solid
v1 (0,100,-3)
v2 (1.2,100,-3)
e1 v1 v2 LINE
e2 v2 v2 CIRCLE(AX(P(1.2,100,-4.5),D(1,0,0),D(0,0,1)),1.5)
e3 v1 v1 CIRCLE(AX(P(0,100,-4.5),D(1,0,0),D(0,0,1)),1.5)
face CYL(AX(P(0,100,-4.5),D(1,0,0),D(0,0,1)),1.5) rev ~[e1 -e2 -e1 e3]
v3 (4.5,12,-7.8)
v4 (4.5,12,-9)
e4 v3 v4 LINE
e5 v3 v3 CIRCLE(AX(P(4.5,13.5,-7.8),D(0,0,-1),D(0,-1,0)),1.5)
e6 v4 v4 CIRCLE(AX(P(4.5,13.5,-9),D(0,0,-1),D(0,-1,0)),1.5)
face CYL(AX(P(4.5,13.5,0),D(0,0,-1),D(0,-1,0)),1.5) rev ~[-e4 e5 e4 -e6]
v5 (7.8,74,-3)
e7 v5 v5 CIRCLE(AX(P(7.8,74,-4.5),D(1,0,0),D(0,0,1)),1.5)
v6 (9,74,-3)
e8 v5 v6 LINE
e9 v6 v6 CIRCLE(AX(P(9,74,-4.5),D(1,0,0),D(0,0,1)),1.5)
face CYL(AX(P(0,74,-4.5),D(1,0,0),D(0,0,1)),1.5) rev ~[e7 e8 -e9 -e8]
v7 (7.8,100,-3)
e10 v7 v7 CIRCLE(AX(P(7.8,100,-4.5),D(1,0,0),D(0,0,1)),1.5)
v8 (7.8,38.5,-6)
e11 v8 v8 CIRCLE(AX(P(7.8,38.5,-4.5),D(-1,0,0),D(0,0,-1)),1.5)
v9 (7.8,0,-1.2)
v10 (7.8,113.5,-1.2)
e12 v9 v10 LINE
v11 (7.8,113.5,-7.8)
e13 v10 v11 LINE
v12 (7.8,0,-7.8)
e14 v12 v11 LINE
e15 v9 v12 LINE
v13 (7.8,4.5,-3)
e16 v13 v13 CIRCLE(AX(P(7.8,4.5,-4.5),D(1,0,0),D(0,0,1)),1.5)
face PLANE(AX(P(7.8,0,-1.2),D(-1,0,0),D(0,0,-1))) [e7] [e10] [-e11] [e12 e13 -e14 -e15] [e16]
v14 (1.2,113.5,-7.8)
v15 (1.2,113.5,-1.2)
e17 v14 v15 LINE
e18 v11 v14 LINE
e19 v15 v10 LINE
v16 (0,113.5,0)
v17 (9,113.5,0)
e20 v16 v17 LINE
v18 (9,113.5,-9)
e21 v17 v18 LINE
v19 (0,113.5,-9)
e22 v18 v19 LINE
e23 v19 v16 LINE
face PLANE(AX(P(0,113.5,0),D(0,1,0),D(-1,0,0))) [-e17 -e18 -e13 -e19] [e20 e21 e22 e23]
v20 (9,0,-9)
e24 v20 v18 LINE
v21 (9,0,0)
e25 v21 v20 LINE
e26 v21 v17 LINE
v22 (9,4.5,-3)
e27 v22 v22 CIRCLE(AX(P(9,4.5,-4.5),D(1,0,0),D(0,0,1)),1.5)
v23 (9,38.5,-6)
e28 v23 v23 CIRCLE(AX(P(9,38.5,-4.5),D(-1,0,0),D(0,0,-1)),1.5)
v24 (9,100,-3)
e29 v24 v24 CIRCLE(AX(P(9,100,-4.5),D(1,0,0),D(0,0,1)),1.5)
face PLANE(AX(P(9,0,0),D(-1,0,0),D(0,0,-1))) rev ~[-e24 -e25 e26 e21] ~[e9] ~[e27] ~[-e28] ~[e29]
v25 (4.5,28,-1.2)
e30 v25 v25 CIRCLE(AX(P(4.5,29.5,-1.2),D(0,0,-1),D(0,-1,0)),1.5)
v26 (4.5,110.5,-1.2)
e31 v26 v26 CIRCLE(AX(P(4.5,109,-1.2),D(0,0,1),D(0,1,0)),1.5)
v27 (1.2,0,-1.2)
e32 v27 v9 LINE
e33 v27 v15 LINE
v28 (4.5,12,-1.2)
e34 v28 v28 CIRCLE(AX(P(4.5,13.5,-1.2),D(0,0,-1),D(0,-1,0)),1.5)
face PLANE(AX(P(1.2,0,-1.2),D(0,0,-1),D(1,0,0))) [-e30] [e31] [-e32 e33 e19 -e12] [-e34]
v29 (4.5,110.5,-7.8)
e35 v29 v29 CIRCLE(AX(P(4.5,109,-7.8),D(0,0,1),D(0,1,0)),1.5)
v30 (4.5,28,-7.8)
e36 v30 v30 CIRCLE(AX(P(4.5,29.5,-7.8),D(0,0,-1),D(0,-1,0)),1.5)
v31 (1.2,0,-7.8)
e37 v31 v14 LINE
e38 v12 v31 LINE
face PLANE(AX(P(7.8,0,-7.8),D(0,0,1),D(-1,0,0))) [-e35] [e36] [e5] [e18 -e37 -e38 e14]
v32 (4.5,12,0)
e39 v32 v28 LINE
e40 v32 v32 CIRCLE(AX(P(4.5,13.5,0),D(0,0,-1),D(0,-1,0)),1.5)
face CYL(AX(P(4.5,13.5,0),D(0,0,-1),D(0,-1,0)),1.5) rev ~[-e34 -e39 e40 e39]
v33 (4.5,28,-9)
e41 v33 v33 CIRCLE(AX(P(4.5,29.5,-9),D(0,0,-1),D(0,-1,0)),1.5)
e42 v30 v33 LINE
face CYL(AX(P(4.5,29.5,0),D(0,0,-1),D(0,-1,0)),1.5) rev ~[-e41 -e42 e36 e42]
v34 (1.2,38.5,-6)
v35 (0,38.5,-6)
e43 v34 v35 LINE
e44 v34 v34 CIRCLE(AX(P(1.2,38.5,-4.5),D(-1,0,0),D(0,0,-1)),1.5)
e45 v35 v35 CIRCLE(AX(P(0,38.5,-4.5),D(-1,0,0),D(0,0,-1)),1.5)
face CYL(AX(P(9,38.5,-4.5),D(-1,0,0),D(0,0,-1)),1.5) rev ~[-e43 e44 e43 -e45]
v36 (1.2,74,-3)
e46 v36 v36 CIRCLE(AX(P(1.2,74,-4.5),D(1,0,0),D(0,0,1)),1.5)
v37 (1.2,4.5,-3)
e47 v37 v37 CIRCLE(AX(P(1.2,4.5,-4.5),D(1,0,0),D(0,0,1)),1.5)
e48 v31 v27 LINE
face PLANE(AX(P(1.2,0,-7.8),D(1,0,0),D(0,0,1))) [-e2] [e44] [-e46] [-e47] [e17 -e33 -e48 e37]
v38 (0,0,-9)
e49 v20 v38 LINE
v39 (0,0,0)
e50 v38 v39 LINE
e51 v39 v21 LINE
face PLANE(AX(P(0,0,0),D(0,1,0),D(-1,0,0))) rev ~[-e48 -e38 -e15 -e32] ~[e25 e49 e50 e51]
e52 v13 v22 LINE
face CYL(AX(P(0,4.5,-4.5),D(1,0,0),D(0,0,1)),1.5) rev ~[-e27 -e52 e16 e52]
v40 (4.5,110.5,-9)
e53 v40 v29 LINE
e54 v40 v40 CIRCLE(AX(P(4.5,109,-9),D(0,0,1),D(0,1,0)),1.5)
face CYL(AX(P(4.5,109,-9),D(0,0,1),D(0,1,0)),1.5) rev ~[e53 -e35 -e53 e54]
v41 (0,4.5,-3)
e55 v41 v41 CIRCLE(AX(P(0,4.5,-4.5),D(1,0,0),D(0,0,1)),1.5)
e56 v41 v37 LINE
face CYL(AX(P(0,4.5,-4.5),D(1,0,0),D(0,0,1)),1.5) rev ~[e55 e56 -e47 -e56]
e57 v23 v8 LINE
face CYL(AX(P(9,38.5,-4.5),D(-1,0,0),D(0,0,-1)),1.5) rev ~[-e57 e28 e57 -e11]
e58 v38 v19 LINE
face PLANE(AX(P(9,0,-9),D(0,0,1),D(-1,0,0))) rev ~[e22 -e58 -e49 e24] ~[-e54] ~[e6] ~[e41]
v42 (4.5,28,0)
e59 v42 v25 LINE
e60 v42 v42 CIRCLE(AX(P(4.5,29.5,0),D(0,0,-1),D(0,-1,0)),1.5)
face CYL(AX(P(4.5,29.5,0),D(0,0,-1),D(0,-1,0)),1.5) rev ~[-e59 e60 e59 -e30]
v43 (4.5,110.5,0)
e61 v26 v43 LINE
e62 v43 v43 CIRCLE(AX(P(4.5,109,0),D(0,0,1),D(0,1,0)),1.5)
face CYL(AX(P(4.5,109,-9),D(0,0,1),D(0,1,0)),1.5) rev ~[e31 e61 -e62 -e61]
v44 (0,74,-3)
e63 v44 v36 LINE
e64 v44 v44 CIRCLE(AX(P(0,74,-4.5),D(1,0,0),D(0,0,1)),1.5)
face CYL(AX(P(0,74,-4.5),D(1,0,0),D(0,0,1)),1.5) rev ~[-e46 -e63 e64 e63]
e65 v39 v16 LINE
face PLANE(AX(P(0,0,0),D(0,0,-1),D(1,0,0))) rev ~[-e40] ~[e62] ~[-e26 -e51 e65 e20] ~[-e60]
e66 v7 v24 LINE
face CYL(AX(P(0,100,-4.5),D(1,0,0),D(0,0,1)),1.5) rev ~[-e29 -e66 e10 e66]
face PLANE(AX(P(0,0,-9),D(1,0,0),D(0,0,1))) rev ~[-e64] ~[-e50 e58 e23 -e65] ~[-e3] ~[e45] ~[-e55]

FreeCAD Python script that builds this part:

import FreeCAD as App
import Part
import Sketcher
from FreeCAD import Vector

doc = App.newDocument("Part")
params = doc.addObject("Spreadsheet::Sheet", "Params")
for row, (alias, value) in enumerate([
    ("sketch1_width", "9 mm"),
    ("sketch1_width2", "6.6 mm"),
    ("pad1_length", "113.5 mm"),
    ("sketch2_diameter", "3 mm"),
    ("hole_diameter", "3 mm"),
    ("sketch3_diameter", "3 mm"),
    ("hole2_diameter", "3 mm"),
    ("sketch4_diameter", "3 mm"),
    ("hole3_diameter", "3 mm"),
    ("sketch5_diameter", "3 mm"),
    ("hole4_diameter", "3 mm"),
    ("sketch6_diameter", "3 mm"),
    ("hole5_diameter", "3 mm"),
], start=1):
    params.set(f"A{row}", alias)
    params.set(f"B{row}", "=" + value)
    params.setAlias(f"B{row}", alias)

body = doc.addObject("PartDesign::Body", "Body")

sketch1 = doc.addObject("Sketcher::SketchObject", "Sketch")
body.addObject(sketch1)
sketch1.AttachmentSupport = (doc.XZ_Plane, [""])
sketch1.MapMode = "FlatFace"
sketch1.addGeometry(Part.LineSegment(Vector(0, -9, 0), Vector(0, 0, 0)), False)
sketch1.addGeometry(Part.LineSegment(Vector(0, 0, 0), Vector(9, 0, 0)), False)
sketch1.addGeometry(Part.LineSegment(Vector(9, 0, 0), Vector(9, -9, 0)), False)
sketch1.addGeometry(Part.LineSegment(Vector(9, -9, 0), Vector(0, -9, 0)), False)
sketch1.addGeometry(Part.LineSegment(Vector(8, -1, 0), Vector(1, -1, 0)), False)
sketch1.addGeometry(Part.LineSegment(Vector(1, -1, 0), Vector(1, -8, 0)), False)
sketch1.addGeometry(Part.LineSegment(Vector(1, -8, 0), Vector(8, -8, 0)), False)
sketch1.addGeometry(Part.LineSegment(Vector(8, -8, 0), Vector(8, -1, 0)), False)
sketch1.addConstraint(Sketcher.Constraint("Coincident", 0, 2, 1, 1))
sketch1.addConstraint(Sketcher.Constraint("Coincident", 1, 2, 2, 1))
sketch1.addConstraint(Sketcher.Constraint("Coincident", 2, 2, 3, 1))
sketch1.addConstraint(Sketcher.Constraint("Coincident", 3, 2, 0, 1))
sketch1.addConstraint(Sketcher.Constraint("Coincident", 4, 2, 5, 1))
sketch1.addConstraint(Sketcher.Constraint("Coincident", 5, 2, 6, 1))
sketch1.addConstraint(Sketcher.Constraint("Coincident", 6, 2, 7, 1))
sketch1.addConstraint(Sketcher.Constraint("Coincident", 7, 2, 4, 1))
sketch1.addConstraint(Sketcher.Constraint("Vertical", 0))
sketch1.addConstraint(Sketcher.Constraint("Horizontal", 1))
sketch1.addConstraint(Sketcher.Constraint("Vertical", 2))
sketch1.addConstraint(Sketcher.Constraint("Horizontal", 3))
sketch1.addConstraint(Sketcher.Constraint("Horizontal", 4))
sketch1.addConstraint(Sketcher.Constraint("Vertical", 5))
sketch1.addConstraint(Sketcher.Constraint("Horizontal", 6))
sketch1.addConstraint(Sketcher.Constraint("Vertical", 7))
sketch1.addConstraint(Sketcher.Constraint("Coincident", 0, 2, -1, 1))
sketch1.addConstraint(Sketcher.Constraint("Equal", 3, 0))
sketch1.addConstraint(Sketcher.Constraint("Equal", 6, 5))
sketch1.addConstraint(Sketcher.Constraint("DistanceX", 1, 1, 1, 2, 9.0))
sketch1.addConstraint(Sketcher.Constraint("DistanceX", 4, 2, 4, 1, 6.6))
sketch1.addConstraint(Sketcher.Constraint("DistanceX", -1, 1, 4, 2, 1.2))
sketch1.addConstraint(Sketcher.Constraint("DistanceY", 4, 2, -1, 1, 1.2))
sketch1.setExpression("Constraints[19]", "Params.sketch1_width")
sketch1.setExpression("Constraints[20]", "Params.sketch1_width2")
pad1 = doc.addObject("PartDesign::Pad", "Pad")
body.addObject(pad1)
pad1.Profile = sketch1
pad1.setExpression("Length", "Params.pad1_length")
pad1.Reversed = True

sketch2 = doc.addObject("Sketcher::SketchObject", "Sketch001")
body.addObject(sketch2)
sketch2.AttachmentSupport = (doc.XY_Plane, [""])
sketch2.MapMode = "FlatFace"
sketch2.addGeometry(Part.Circle(Vector(4.5, 29.5, 0), Vector(0, 0, 1), 1.5), False)
sketch2.addGeometry(Part.Circle(Vector(4.5, 13.5, 0), Vector(0, 0, 1), 1.5), False)
sketch2.addConstraint(Sketcher.Constraint("Equal", 0, 1))
sketch2.addConstraint(Sketcher.Constraint("Vertical", 0, 3, 1, 3))
sketch2.addConstraint(Sketcher.Constraint("Diameter", 0, 3.0))
sketch2.addConstraint(Sketcher.Constraint("DistanceY", 1, 3, 0, 3, 16.0))
sketch2.addConstraint(Sketcher.Constraint("DistanceX", -1, 1, 0, 3, 4.5))
sketch2.addConstraint(Sketcher.Constraint("DistanceY", -1, 1, 0, 3, 29.5))
sketch2.setExpression("Constraints[2]", "Params.sketch2_diameter")
doc.recompute()
hole = doc.addObject("PartDesign::Hole", "Hole")
body.addObject(hole)
hole.Profile = sketch2
hole.ThreadType = "None"
hole.setExpression("Diameter", "Params.hole_diameter")
hole.DepthType = "ThroughAll"

sketch3 = doc.addObject("Sketcher::SketchObject", "Sketch002")
body.addObject(sketch3)
sketch3.AttachmentSupport = (doc.YZ_Plane, [""])
sketch3.MapMode = "FlatFace"
sketch3.addGeometry(Part.Circle(Vector(4.5, -4.5, 0), Vector(0, 0, 1), 1.5), False)
sketch3.addGeometry(Part.Circle(Vector(74, -4.5, 0), Vector(0, 0, 1), 1.5), False)
sketch3.addConstraint(Sketcher.Constraint("Equal", 0, 1))
sketch3.addConstraint(Sketcher.Constraint("Horizontal", 0, 3, 1, 3))
sketch3.addConstraint(Sketcher.Constraint("Diameter", 0, 3.0))
sketch3.addConstraint(Sketcher.Constraint("DistanceX", -1, 1, 1, 3, 74.0))
sketch3.addConstraint(Sketcher.Constraint("DistanceX", -1, 1, 0, 3, 4.5))
sketch3.addConstraint(Sketcher.Constraint("DistanceY", 0, 3, -1, 1, 4.5))
sketch3.setExpression("Constraints[2]", "Params.sketch3_diameter")
doc.recompute()
hole2 = doc.addObject("PartDesign::Hole", "Hole001")
body.addObject(hole2)
hole2.Profile = sketch3
hole2.ThreadType = "None"
hole2.setExpression("Diameter", "Params.hole2_diameter")
hole2.DepthType = "ThroughAll"
hole2.Reversed = True

sketch4 = doc.addObject("Sketcher::SketchObject", "Sketch003")
body.addObject(sketch4)
sketch4.AttachmentSupport = (doc.YZ_Plane, [""])
sketch4.MapMode = "FlatFace"
sketch4.addGeometry(Part.Circle(Vector(100, -4.5, 0), Vector(0, 0, 1), 1.5), False)
sketch4.addConstraint(Sketcher.Constraint("Diameter", 0, 3.0))
sketch4.addConstraint(Sketcher.Constraint("DistanceX", -1, 1, 0, 3, 100.0))
sketch4.addConstraint(Sketcher.Constraint("DistanceY", 0, 3, -1, 1, 4.5))
sketch4.setExpression("Constraints[0]", "Params.sketch4_diameter")
doc.recompute()
hole3 = doc.addObject("PartDesign::Hole", "Hole002")
body.addObject(hole3)
hole3.Profile = sketch4
hole3.ThreadType = "None"
hole3.setExpression("Diameter", "Params.hole3_diameter")
hole3.DepthType = "ThroughAll"
hole3.Reversed = True

sketch5 = doc.addObject("Sketcher::SketchObject", "Sketch004")
body.addObject(sketch5)
sketch5.AttachmentSupport = (doc.XY_Plane, [""])
sketch5.MapMode = "FlatFace"
sketch5.AttachmentOffset = App.Placement(Vector(0, 0, -9), App.Rotation())
sketch5.addGeometry(Part.Circle(Vector(4.5, 109, 0), Vector(0, 0, 1), 1.5), False)
sketch5.addConstraint(Sketcher.Constraint("Diameter", 0, 3.0))
sketch5.addConstraint(Sketcher.Constraint("DistanceY", -1, 1, 0, 3, 109.0))
sketch5.addConstraint(Sketcher.Constraint("DistanceX", -1, 1, 0, 3, 4.5))
sketch5.setExpression("Constraints[0]", "Params.sketch5_diameter")
doc.recompute()
hole4 = doc.addObject("PartDesign::Hole", "Hole003")
body.addObject(hole4)
hole4.Profile = sketch5
hole4.ThreadType = "None"
hole4.setExpression("Diameter", "Params.hole4_diameter")
hole4.DepthType = "ThroughAll"
hole4.Reversed = True

sketch6 = doc.addObject("Sketcher::SketchObject", "Sketch005")
body.addObject(sketch6)
sketch6.AttachmentSupport = (doc.YZ_Plane, [""])
sketch6.MapMode = "FlatFace"
sketch6.AttachmentOffset = App.Placement(Vector(0, 0, 9), App.Rotation())
sketch6.addGeometry(Part.Circle(Vector(38.5, -4.5, 0), Vector(0, 0, 1), 1.5), False)
sketch6.addConstraint(Sketcher.Constraint("Diameter", 0, 3.0))
sketch6.addConstraint(Sketcher.Constraint("DistanceX", -1, 1, 0, 3, 38.5))
sketch6.addConstraint(Sketcher.Constraint("DistanceY", 0, 3, -1, 1, 4.5))
sketch6.setExpression("Constraints[0]", "Params.sketch6_diameter")
doc.recompute()
hole5 = doc.addObject("PartDesign::Hole", "Hole004")
body.addObject(hole5)
hole5.Profile = sketch6
hole5.ThreadType = "None"
hole5.setExpression("Diameter", "Params.hole5_diameter")
hole5.DepthType = "ThroughAll"

doc.recompute()
